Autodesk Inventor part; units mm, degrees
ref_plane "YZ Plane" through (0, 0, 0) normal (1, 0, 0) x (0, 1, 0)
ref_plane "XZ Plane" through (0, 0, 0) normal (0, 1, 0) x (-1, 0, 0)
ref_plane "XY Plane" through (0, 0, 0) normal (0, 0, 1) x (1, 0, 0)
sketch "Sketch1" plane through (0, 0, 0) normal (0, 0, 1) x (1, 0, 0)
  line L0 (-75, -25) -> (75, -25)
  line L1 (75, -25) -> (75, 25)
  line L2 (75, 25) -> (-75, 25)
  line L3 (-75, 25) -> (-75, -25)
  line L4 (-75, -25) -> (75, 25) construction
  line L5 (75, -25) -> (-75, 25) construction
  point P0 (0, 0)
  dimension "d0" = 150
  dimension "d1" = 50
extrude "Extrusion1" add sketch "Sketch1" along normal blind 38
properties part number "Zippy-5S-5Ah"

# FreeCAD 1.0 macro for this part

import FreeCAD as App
import Part
import Sketcher

V = App.Vector

doc = App.newDocument("Part")
body = doc.addObject("PartDesign::Body", "Body")

sketch1 = body.newObject("Sketcher::SketchObject", "Sketch")
sketch1.AttachmentSupport = (doc.getObject("XY_Plane"), [""])
sketch1.MapMode = "FlatFace"
sketch1.addGeometry(Part.LineSegment(V(-75, 25, 0), V(-75, -25, 0)), False)
sketch1.addGeometry(Part.LineSegment(V(-75, -25, 0), V(75, -25, 0)), False)
sketch1.addGeometry(Part.LineSegment(V(75, -25, 0), V(75, 25, 0)), False)
sketch1.addGeometry(Part.LineSegment(V(75, 25, 0), V(-75, 25, 0)), False)
sketch1.addConstraint(Sketcher.Constraint("Coincident", 0, 2, 1, 1))
sketch1.addConstraint(Sketcher.Constraint("Coincident", 1, 2, 2, 1))
sketch1.addConstraint(Sketcher.Constraint("Coincident", 2, 2, 3, 1))
sketch1.addConstraint(Sketcher.Constraint("Coincident", 3, 2, 0, 1))
sketch1.addConstraint(Sketcher.Constraint("Vertical", 0))
sketch1.addConstraint(Sketcher.Constraint("Horizontal", 1))
sketch1.addConstraint(Sketcher.Constraint("Vertical", 2))
sketch1.addConstraint(Sketcher.Constraint("Horizontal", 3))
sketch1.addConstraint(Sketcher.Constraint("Symmetric", 0, 2, 2, 2, -1, 1))
sketch1.addConstraint(Sketcher.Constraint("DistanceX", 1, 1, 1, 2, 150.0))
sketch1.addConstraint(Sketcher.Constraint("DistanceY", 0, 2, 0, 1, 50.0))
pad1 = body.newObject("PartDesign::Pad", "Pad")
pad1.Profile = sketch1
pad1.Length = 38

doc.recompute()
